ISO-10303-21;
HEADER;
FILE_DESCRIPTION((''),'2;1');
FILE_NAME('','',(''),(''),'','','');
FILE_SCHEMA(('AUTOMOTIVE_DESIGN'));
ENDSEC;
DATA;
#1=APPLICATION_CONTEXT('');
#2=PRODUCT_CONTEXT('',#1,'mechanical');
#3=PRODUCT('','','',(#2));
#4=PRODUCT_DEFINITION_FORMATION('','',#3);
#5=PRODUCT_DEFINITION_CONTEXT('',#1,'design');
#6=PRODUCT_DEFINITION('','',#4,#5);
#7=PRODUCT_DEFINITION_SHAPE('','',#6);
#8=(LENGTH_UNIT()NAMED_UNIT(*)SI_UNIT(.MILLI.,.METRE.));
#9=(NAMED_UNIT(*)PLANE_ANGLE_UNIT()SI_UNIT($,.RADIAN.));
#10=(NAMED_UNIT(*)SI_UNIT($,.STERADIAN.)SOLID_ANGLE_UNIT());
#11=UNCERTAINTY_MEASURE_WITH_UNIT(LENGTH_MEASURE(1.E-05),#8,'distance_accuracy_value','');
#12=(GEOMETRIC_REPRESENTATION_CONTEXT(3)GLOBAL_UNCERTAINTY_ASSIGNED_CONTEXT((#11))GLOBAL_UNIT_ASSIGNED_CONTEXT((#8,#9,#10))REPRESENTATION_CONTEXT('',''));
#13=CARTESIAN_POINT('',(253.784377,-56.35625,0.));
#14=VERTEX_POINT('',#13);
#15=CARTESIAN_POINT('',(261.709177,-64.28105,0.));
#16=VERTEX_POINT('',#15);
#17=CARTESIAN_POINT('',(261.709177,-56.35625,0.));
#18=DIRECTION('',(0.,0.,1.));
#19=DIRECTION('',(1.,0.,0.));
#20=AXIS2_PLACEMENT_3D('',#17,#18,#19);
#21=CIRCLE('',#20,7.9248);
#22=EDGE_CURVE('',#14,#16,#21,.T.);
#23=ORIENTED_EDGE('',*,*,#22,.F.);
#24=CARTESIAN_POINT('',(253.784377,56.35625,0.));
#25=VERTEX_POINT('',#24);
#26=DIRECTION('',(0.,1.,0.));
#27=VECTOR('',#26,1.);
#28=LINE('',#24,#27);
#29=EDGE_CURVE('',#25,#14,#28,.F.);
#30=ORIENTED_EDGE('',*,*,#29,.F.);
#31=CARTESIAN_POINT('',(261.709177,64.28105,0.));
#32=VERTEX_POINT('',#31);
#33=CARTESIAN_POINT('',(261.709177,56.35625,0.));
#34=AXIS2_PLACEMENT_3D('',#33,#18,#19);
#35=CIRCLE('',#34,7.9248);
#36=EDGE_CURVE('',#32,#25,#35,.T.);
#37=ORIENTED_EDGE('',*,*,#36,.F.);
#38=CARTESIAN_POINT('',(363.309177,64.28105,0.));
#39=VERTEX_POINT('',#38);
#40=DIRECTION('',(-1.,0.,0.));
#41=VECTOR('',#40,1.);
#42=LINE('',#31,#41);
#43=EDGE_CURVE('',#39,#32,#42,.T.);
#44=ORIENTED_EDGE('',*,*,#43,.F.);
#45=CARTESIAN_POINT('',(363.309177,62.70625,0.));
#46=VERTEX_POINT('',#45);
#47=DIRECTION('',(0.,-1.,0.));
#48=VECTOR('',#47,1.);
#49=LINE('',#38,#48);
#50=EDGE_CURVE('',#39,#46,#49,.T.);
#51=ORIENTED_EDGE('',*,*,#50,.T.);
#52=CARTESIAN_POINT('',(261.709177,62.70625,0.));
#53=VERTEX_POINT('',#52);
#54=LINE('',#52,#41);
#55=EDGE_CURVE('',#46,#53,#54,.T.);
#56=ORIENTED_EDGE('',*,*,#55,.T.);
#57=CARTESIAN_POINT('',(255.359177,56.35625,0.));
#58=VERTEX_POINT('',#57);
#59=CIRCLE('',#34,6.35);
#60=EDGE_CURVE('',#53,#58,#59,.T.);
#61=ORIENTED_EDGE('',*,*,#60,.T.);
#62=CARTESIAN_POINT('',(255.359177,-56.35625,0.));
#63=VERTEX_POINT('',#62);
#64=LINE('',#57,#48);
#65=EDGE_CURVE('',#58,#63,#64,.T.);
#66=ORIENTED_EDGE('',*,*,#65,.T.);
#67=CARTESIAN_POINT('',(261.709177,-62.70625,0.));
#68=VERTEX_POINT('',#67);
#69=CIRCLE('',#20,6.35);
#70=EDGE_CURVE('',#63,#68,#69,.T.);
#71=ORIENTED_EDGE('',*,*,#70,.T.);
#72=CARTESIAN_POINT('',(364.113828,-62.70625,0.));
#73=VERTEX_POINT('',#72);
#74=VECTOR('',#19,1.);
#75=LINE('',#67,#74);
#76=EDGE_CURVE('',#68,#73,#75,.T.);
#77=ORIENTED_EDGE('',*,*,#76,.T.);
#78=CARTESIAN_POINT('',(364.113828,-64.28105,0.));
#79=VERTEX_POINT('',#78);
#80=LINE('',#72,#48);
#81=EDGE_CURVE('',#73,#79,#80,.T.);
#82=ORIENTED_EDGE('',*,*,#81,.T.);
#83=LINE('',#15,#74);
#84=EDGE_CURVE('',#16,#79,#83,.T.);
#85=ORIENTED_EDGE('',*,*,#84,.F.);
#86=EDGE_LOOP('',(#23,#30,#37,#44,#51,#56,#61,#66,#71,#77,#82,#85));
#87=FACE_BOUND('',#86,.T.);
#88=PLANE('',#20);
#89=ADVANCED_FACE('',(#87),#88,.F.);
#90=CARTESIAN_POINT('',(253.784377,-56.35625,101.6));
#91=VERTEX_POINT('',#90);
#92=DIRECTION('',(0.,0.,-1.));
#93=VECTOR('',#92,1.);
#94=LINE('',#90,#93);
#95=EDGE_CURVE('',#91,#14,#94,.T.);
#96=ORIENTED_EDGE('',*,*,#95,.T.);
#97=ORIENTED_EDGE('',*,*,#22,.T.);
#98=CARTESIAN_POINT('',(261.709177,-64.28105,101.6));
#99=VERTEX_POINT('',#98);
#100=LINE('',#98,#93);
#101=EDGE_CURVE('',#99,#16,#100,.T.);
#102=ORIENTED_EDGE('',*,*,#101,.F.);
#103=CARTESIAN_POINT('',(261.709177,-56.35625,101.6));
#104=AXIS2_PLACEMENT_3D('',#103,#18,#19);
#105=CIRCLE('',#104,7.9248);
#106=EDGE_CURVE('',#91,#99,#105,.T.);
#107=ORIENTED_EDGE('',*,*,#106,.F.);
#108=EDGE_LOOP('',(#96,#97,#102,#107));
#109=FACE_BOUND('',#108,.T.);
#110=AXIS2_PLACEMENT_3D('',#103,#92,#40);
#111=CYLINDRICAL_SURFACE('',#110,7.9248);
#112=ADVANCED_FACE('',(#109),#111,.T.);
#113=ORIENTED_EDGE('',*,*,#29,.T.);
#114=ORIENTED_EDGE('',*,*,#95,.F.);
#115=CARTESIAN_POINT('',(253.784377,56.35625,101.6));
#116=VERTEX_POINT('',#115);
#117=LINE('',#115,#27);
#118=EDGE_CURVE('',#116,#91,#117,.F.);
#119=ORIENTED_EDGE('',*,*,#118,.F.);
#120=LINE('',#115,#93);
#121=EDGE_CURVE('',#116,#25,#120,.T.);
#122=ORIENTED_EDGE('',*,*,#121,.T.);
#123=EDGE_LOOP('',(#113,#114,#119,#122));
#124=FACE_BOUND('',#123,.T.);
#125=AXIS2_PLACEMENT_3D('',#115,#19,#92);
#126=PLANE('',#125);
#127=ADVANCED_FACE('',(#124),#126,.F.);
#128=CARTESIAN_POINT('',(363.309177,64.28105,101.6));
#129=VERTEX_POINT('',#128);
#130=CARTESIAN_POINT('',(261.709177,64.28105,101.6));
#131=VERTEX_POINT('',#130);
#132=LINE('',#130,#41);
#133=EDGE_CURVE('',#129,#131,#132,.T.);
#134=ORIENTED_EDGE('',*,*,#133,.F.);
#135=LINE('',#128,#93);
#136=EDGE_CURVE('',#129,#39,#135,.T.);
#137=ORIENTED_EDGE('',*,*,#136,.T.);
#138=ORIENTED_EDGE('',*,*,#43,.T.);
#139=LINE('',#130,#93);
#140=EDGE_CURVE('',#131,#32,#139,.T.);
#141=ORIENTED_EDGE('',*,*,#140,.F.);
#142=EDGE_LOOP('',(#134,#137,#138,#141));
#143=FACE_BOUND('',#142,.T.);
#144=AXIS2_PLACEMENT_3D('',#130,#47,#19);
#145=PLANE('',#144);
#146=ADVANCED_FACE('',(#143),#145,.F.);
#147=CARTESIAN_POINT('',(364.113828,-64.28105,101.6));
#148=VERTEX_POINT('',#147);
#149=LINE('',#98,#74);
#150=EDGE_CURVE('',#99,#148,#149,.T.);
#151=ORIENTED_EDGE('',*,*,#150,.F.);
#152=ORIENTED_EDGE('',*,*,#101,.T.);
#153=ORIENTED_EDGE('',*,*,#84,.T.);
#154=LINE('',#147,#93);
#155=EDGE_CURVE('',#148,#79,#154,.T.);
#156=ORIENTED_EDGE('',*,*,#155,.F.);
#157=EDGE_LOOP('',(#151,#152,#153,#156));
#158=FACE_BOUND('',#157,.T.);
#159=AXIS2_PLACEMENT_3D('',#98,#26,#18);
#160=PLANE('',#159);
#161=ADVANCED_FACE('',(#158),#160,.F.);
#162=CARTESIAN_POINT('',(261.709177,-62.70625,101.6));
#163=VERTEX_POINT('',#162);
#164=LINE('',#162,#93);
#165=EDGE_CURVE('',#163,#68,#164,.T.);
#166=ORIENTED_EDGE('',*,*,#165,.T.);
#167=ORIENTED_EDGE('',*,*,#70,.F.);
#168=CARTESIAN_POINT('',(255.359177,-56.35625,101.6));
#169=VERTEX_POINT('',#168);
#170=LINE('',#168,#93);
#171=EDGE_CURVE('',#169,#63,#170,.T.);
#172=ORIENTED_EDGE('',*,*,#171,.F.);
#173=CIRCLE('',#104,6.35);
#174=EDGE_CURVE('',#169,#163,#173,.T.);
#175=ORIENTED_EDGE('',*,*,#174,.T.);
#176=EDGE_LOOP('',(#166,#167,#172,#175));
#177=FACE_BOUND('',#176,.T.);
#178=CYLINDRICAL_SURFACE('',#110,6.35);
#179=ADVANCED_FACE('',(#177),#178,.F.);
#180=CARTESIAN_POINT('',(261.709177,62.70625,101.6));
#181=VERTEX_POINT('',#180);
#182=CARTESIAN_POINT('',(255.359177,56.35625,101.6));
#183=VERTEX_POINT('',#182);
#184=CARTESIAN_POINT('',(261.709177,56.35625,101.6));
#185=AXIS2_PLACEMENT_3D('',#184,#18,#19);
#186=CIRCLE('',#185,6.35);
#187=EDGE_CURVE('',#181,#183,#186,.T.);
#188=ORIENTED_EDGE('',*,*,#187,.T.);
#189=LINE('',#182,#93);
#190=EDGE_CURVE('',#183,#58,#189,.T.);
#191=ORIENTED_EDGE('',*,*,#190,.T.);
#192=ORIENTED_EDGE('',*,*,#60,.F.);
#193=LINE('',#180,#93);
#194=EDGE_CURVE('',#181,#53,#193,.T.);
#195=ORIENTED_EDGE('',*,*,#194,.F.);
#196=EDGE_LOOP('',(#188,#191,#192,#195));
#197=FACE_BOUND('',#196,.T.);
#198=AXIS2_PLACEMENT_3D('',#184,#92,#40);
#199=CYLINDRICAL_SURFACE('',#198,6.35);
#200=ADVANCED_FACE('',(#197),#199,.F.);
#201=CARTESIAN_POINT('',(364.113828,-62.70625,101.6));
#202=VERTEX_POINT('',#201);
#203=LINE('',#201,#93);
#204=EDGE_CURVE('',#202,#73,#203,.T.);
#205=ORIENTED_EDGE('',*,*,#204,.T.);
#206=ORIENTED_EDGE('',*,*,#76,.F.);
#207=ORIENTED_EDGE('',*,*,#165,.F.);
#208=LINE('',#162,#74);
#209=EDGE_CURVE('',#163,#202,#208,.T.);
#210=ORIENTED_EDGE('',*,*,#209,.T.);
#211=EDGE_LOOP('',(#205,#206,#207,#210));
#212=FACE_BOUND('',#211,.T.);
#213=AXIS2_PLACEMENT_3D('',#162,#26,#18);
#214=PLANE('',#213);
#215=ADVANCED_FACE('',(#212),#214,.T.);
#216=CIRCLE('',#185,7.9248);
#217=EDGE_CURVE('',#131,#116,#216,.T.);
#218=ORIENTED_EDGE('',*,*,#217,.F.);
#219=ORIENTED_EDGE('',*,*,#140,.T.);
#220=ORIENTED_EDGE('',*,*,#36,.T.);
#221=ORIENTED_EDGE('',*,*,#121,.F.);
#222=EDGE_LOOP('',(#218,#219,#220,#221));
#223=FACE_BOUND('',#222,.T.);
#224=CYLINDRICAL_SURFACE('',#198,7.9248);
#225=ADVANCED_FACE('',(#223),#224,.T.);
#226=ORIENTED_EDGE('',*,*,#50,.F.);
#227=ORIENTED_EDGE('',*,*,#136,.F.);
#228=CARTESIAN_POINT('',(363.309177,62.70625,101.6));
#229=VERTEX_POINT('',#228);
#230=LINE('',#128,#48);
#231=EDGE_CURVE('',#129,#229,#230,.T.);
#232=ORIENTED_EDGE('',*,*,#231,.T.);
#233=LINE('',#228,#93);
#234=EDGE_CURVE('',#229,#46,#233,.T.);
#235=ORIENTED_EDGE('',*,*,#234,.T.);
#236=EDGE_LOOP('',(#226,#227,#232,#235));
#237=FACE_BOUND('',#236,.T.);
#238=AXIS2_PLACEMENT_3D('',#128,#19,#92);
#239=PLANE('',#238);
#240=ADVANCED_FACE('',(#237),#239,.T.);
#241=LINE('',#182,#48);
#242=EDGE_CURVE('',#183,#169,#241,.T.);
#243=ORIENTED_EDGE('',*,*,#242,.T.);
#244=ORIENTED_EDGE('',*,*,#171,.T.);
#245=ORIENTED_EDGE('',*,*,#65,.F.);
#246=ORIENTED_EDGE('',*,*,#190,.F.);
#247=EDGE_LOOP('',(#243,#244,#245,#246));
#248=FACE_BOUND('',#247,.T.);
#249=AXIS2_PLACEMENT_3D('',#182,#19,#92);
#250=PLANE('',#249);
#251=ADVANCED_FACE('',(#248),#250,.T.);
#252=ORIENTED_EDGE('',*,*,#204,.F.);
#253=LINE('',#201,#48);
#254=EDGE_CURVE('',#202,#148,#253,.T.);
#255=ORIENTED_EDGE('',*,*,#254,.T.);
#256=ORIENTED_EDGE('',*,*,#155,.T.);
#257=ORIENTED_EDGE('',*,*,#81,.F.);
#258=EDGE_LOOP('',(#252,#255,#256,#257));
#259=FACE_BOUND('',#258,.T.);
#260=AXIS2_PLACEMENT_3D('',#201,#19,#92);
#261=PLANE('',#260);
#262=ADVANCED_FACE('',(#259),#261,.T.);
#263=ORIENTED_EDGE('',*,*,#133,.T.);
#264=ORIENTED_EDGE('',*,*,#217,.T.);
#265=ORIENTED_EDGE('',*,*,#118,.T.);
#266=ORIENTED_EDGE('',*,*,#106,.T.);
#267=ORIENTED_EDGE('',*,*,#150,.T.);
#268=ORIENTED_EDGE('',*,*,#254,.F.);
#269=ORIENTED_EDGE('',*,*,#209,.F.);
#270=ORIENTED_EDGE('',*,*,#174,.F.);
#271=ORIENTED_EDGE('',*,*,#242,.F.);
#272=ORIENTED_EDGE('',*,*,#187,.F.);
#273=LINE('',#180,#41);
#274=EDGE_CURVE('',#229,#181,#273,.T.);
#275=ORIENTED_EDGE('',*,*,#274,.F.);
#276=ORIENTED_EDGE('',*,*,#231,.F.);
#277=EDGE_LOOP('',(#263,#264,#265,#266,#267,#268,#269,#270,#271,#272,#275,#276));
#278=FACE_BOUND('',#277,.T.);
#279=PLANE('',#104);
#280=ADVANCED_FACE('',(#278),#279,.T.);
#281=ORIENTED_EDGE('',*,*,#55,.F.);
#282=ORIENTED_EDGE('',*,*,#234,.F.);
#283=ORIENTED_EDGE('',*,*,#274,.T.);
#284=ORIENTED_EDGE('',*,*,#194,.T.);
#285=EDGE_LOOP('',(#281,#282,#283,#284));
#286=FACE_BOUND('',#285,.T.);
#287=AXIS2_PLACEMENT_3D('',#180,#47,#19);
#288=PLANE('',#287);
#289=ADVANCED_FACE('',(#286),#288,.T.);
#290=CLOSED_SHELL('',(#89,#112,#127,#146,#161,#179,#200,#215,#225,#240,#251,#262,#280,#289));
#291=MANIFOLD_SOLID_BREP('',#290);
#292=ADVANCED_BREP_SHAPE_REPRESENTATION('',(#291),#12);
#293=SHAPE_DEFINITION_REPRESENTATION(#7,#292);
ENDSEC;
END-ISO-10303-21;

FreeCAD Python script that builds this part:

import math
import FreeCAD as App
import Part
import Sketcher

V = App.Vector
Q = App.Units.Quantity

doc = App.newDocument("Part")
params = doc.addObject("Spreadsheet::Sheet", "Params")
for row, (alias, value) in enumerate([
    ("sketch1_width", "4 in"),
    ("sketch1_radius", "0.25 in"),
    ("sketch1_radius2", "0.312 in"),
    ("sketch1_height", "4.4375 in"),
    ("pad1_length", "4 in"),
], start=1):
    params.set(f"A{row}", alias)
    params.set(f"B{row}", "=" + value)
    params.setAlias(f"B{row}", alias)

body = doc.addObject("PartDesign::Body", "Body")

# Sketch on XY plane
sketch1 = body.newObject("Sketcher::SketchObject", "Sketch")
sketch1.AttachmentSupport = (doc.getObject("XY_Plane"), [""])
sketch1.MapMode = "FlatFace"
sketch1.addGeometry([
    Part.LineSegment(V(364.113828, -62.70625, 0), V(261.709177, -62.70625, 0)),  # 0
    Part.ArcOfCircle(Part.Circle(V(261.709177, -56.35625, 0), V(0, 0, 1), 6.35), math.radians(180), math.radians(270)),  # 1
    Part.LineSegment(V(255.359177, -56.35625, 0), V(255.359177, 56.35625, 0)),  # 2
    Part.ArcOfCircle(Part.Circle(V(261.709177, 56.35625, 0), V(0, 0, 1), 6.35), math.radians(90), math.radians(180)),  # 3
    Part.LineSegment(V(261.709177, 62.70625, 0), V(363.309177, 62.70625, 0)),  # 4
    Part.LineSegment(V(363.309177, 62.70625, 0), V(363.309177, 64.28105, 0)),  # 5
    Part.LineSegment(V(363.309177, 64.28105, 0), V(261.709177, 64.28105, 0)),  # 6
    Part.ArcOfCircle(Part.Circle(V(261.709177, 56.35625, 0), V(0, 0, 1), 7.9248), math.radians(90), math.radians(180)),  # 7
    Part.LineSegment(V(253.784377, 56.35625, 0), V(253.784377, -56.35625, 0)),  # 8
    Part.ArcOfCircle(Part.Circle(V(261.709177, -56.35625, 0), V(0, 0, 1), 7.9248), math.radians(180), math.radians(270)),  # 9
    Part.LineSegment(V(261.709177, -64.28105, 0), V(364.113828, -64.28105, 0)),  # 10
    Part.LineSegment(V(364.113828, -64.28105, 0), V(364.113828, -62.70625, 0)),  # 11
], False)
sketch1.addConstraint([
    Sketcher.Constraint("Tangent", 0, 2, 1, 2),
    Sketcher.Constraint("Tangent", 1, 1, 2, 1),
    Sketcher.Constraint("Tangent", 2, 2, 3, 2),
    Sketcher.Constraint("Tangent", 3, 1, 4, 1),
    Sketcher.Constraint("Coincident", 4, 2, 5, 1),
    Sketcher.Constraint("Coincident", 5, 2, 6, 1),
    Sketcher.Constraint("Tangent", 6, 2, 7, 1),
    Sketcher.Constraint("Tangent", 7, 2, 8, 1),
    Sketcher.Constraint("Tangent", 8, 2, 9, 1),
    Sketcher.Constraint("Tangent", 9, 2, 10, 1),
    Sketcher.Constraint("Coincident", 10, 2, 11, 1),
    Sketcher.Constraint("Coincident", 11, 2, 0, 1),
    Sketcher.Constraint("Horizontal", 0),
    Sketcher.Constraint("Vertical", 2),
    Sketcher.Constraint("Horizontal", 4),
    Sketcher.Constraint("Vertical", 5),
    Sketcher.Constraint("Horizontal", 6),
    Sketcher.Constraint("Vertical", 8),
    Sketcher.Constraint("Horizontal", 10),
    Sketcher.Constraint("Vertical", 11),
    Sketcher.Constraint("Coincident", 7, 3, 3, 3),
    Sketcher.Constraint("Coincident", 9, 3, 1, 3),
    Sketcher.Constraint("Equal", 1, 3),
    Sketcher.Constraint("DistanceX", 4, 1, 4, 2, Q("4 in")),
    Sketcher.Constraint("Radius", 1, Q("0.25 in")),
    Sketcher.Constraint("Radius", 7, Q("0.312 in")),
    Sketcher.Constraint("DistanceY", 2, 1, 2, 2, Q("4.4375 in")),
    Sketcher.Constraint("DistanceY", 1, 3, -1, 1, Q("2.21875 in")),
    Sketcher.Constraint("DistanceX", 0, 2, 0, 1, Q("102.40465 mm")),
    Sketcher.Constraint("DistanceX", -1, 1, 1, 3, Q("261.709177 mm")),
])
sketch1.setExpression("Constraints[23]", "Params.sketch1_width")
sketch1.setExpression("Constraints[24]", "Params.sketch1_radius")
sketch1.setExpression("Constraints[25]", "Params.sketch1_radius2")
sketch1.setExpression("Constraints[26]", "Params.sketch1_height")
pad1 = body.newObject("PartDesign::Pad", "Pad")
pad1.Profile = sketch1
pad1.setExpression("Length", "Params.pad1_length")

doc.recompute()
